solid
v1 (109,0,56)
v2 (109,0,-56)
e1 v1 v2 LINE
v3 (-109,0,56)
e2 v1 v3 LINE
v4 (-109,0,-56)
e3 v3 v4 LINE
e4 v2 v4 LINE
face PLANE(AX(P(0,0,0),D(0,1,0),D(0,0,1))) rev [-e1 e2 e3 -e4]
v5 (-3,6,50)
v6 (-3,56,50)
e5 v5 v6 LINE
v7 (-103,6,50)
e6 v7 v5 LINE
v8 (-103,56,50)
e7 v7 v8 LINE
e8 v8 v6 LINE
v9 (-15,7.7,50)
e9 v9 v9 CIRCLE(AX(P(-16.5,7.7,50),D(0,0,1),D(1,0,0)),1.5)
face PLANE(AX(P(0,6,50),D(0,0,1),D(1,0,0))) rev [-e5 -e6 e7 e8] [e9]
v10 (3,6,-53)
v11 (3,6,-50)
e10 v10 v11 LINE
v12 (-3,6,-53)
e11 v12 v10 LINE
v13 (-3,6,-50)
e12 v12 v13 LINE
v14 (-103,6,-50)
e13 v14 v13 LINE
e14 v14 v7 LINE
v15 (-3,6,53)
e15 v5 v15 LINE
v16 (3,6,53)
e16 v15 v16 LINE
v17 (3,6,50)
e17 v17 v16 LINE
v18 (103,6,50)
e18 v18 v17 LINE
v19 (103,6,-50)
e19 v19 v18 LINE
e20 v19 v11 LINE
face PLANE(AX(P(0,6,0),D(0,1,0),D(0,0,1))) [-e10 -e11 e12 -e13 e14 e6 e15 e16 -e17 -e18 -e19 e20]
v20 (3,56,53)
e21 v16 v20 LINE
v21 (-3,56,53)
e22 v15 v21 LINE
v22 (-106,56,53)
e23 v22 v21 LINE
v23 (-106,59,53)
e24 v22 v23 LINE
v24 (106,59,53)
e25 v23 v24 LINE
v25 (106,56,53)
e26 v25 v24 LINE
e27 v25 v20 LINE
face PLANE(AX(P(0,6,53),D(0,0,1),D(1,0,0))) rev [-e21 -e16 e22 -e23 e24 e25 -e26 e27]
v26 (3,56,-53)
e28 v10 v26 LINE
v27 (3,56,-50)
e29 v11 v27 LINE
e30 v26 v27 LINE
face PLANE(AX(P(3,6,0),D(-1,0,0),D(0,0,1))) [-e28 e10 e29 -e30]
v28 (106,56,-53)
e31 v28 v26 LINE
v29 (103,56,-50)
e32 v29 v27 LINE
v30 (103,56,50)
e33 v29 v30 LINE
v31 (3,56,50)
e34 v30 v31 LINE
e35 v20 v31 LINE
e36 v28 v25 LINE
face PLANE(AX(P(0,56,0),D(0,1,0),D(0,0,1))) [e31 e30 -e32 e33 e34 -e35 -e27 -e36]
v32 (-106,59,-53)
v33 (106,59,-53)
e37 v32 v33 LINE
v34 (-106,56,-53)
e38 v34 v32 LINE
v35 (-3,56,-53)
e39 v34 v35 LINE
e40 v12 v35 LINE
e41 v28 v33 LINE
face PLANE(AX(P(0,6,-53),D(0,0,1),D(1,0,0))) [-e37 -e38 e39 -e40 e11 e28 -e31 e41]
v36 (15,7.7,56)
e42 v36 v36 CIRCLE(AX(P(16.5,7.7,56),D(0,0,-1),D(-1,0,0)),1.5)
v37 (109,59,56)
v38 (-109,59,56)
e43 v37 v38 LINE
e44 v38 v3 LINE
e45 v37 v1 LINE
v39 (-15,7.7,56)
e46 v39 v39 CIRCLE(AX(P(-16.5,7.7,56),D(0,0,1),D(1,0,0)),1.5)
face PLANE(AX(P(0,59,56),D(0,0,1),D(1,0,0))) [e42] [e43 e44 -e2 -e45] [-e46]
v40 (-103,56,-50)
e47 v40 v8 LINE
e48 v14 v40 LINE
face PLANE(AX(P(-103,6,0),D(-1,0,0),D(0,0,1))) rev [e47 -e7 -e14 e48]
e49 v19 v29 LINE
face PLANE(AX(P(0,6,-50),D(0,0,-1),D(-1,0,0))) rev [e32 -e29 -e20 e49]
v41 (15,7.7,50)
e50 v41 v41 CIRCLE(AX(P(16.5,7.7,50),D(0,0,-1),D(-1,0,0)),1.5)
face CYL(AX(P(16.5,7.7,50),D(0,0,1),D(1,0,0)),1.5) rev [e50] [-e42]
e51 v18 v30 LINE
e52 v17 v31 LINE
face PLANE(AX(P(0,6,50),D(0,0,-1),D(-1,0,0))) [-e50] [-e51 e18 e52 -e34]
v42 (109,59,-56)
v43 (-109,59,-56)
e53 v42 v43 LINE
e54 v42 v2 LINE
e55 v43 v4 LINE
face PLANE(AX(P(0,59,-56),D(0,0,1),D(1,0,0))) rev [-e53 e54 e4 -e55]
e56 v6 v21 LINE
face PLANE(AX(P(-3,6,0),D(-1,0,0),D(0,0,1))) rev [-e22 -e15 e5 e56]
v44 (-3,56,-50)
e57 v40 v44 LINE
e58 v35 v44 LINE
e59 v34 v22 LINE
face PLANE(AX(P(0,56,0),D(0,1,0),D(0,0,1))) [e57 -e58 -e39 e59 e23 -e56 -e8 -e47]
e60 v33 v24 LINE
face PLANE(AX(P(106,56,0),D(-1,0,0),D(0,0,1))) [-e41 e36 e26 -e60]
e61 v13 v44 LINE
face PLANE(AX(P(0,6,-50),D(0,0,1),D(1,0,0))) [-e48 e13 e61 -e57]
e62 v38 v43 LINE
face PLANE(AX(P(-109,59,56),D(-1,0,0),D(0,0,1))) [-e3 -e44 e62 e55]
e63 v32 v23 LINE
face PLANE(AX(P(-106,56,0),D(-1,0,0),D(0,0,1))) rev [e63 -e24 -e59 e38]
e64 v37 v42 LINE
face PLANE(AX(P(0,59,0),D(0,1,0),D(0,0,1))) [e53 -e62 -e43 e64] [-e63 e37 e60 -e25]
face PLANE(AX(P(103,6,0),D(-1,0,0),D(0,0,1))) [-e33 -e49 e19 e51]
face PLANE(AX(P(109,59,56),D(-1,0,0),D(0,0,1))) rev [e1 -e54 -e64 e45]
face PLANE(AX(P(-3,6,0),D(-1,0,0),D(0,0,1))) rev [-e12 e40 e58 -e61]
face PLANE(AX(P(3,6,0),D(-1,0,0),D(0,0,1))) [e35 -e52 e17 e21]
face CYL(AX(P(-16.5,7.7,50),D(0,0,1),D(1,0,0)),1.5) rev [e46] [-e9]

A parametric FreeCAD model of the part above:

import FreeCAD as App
import Part
import Sketcher
from FreeCAD import Vector
Q = App.Units.Quantity


def add_polygon(sketch, points):
    """Adds a closed chain of lines whose ends are joined by coincident constraints."""
    first, n = sketch.GeometryCount, len(points)
    for a, b in zip(points, points[1:] + points[:1]):
        sketch.addGeometry(Part.LineSegment(App.Vector(*a, 0), App.Vector(*b, 0)), False)
    for i in range(n):
        sketch.addConstraint(Sketcher.Constraint("Coincident", first + i, 2, first + (i + 1) % n, 1))

doc = App.newDocument("Part")
body = doc.addObject("PartDesign::Body", "Body")

# Sketch on XZ plane
sketch1 = doc.addObject("Sketcher::SketchObject", "Sketch")
body.addObject(sketch1)
sketch1.AttachmentSupport = (doc.XZ_Plane, [""])
sketch1.MapMode = "FlatFace"
add_polygon(sketch1, [(-109, -56), (-109, 56), (0, 56), (0, -56)])  # lines 0-3
sketch1.addConstraint(Sketcher.Constraint("Vertical", 0))
sketch1.addConstraint(Sketcher.Constraint("Horizontal", 1))
sketch1.addConstraint(Sketcher.Constraint("Vertical", 2))
sketch1.addConstraint(Sketcher.Constraint("Horizontal", 3))
sketch1.addConstraint(Sketcher.Constraint("Symmetric", 1, 2, 2, 2, -1, 1))
sketch1.addConstraint(Sketcher.Constraint("DistanceX", 1, 1, 1, 2, Q("109 mm")))
sketch1.addConstraint(Sketcher.Constraint("DistanceY", 0, 1, 0, 2, Q("112 mm")))
pad1 = doc.addObject("PartDesign::Pad", "Pad")
body.addObject(pad1)
pad1.Profile = sketch1
pad1.Length = 59
pad1.Reversed = True

# Sketch on XZ plane
sketch2 = doc.addObject("Sketcher::SketchObject", "Sketch001")
body.addObject(sketch2)
sketch2.AttachmentSupport = (doc.XZ_Plane, [""])
sketch2.MapMode = "FlatFace"
sketch2.AttachmentOffset = App.Placement(Vector(0, 0, -59), App.Rotation())
add_polygon(sketch2, [(-103, -50), (-103, 50), (-3, 50), (-3, 53), (0, 53), (0, -53), (-3, -53), (-3, -50)])  # lines 0-7
sketch2.addConstraint(Sketcher.Constraint("Vertical", 0))
sketch2.addConstraint(Sketcher.Constraint("Horizontal", 1))
sketch2.addConstraint(Sketcher.Constraint("Vertical", 2))
sketch2.addConstraint(Sketcher.Constraint("Horizontal", 3))
sketch2.addConstraint(Sketcher.Constraint("Vertical", 4))
sketch2.addConstraint(Sketcher.Constraint("Horizontal", 5))
sketch2.addConstraint(Sketcher.Constraint("Vertical", 6))
sketch2.addConstraint(Sketcher.Constraint("Horizontal", 7))
sketch2.addConstraint(Sketcher.Constraint("Symmetric", 3, 2, 4, 2, -1, 1))
sketch2.addConstraint(Sketcher.Constraint("Symmetric", 1, 2, 6, 2, -1))
sketch2.addConstraint(Sketcher.Constraint("Equal", 7, 0))
sketch2.addConstraint(Sketcher.Constraint("Equal", 5, 2))
sketch2.addConstraint(Sketcher.Constraint("DistanceX", 1, 1, 1, 2, Q("100 mm")))
sketch2.addConstraint(Sketcher.Constraint("DistanceX", 3, 1, 3, 2, Q("3 mm")))
pocket1 = doc.addObject("PartDesign::Pocket", "Pocket")
body.addObject(pocket1)
pocket1.Profile = sketch2
pocket1.Length = 53
pocket1.Reversed = True

# Sketch on XZ plane
sketch3 = doc.addObject("Sketcher::SketchObject", "Sketch002")
body.addObject(sketch3)
sketch3.AttachmentSupport = (doc.XZ_Plane, [""])
sketch3.MapMode = "FlatFace"
sketch3.AttachmentOffset = App.Placement(Vector(0, 0, -59), App.Rotation())
add_polygon(sketch3, [(-106, -53), (-106, 53), (-3, 53), (-3, -53)])  # lines 0-3
add_polygon(sketch3, [(-6, 50), (-103, 50), (-103, -50), (-6, -50)])  # lines 4-7
sketch3.addConstraint(Sketcher.Constraint("Vertical", 0))
sketch3.addConstraint(Sketcher.Constraint("Horizontal", 1))
sketch3.addConstraint(Sketcher.Constraint("Vertical", 2))
sketch3.addConstraint(Sketcher.Constraint("Horizontal", 3))
sketch3.addConstraint(Sketcher.Constraint("Horizontal", 4))
sketch3.addConstraint(Sketcher.Constraint("Vertical", 5))
sketch3.addConstraint(Sketcher.Constraint("Horizontal", 6))
sketch3.addConstraint(Sketcher.Constraint("Vertical", 7))
sketch3.addConstraint(Sketcher.Constraint("DistanceX", 1, 1, 1, 2, Q("103 mm")))
sketch3.addConstraint(Sketcher.Constraint("DistanceX", 4, 2, 4, 1, Q("97 mm")))
sketch3.addConstraint(Sketcher.Constraint("DistanceY", 0, 1, 0, 2, Q("106 mm")))
sketch3.addConstraint(Sketcher.Constraint("DistanceY", 5, 2, 5, 1, Q("100 mm")))
sketch3.addConstraint(Sketcher.Constraint("DistanceX", 0, 2, -1, 1, Q("106 mm")))
sketch3.addConstraint(Sketcher.Constraint("DistanceY", -1, 1, 0, 2, Q("53 mm")))
sketch3.addConstraint(Sketcher.Constraint("DistanceX", 4, 2, -1, 1, Q("103 mm")))
sketch3.addConstraint(Sketcher.Constraint("DistanceY", -1, 1, 4, 2, Q("50 mm")))
pocket2 = doc.addObject("PartDesign::Pocket", "Pocket001")
body.addObject(pocket2)
pocket2.Profile = sketch3
pocket2.Length = 3
pocket2.Reversed = True

# Sketch on XY plane
sketch4 = doc.addObject("Sketcher::SketchObject", "Sketch003")
body.addObject(sketch4)
sketch4.AttachmentSupport = (doc.XY_Plane, [""])
sketch4.MapMode = "FlatFace"
sketch4.AttachmentOffset = App.Placement(Vector(0, 0, 56), App.Rotation())
sketch4.addGeometry(Part.Circle(Vector(-16.5, 7.7, 0), Vector(0, 0, 1), 1.5), False)
sketch4.addConstraint(Sketcher.Constraint("Diameter", 0, Q("3 mm")))
sketch4.addConstraint(Sketcher.Constraint("DistanceX", 0, 3, -1, 1, Q("16.5 mm")))
sketch4.addConstraint(Sketcher.Constraint("DistanceY", -1, 1, 0, 3, Q("7.7 mm")))
pocket3 = doc.addObject("PartDesign::Pocket", "Pocket002")
body.addObject(pocket3)
pocket3.Profile = sketch4
pocket3.Length = 6
doc.recompute()

mirrored = doc.addObject("PartDesign::Mirrored", "Mirrored")
body.addObject(mirrored)
mirrored.Originals = [pad1, pocket1, pocket2, pocket3]
mirrored.MirrorPlane = (doc.YZ_Plane, [""])
body.Tip = mirrored

doc.recompute()
